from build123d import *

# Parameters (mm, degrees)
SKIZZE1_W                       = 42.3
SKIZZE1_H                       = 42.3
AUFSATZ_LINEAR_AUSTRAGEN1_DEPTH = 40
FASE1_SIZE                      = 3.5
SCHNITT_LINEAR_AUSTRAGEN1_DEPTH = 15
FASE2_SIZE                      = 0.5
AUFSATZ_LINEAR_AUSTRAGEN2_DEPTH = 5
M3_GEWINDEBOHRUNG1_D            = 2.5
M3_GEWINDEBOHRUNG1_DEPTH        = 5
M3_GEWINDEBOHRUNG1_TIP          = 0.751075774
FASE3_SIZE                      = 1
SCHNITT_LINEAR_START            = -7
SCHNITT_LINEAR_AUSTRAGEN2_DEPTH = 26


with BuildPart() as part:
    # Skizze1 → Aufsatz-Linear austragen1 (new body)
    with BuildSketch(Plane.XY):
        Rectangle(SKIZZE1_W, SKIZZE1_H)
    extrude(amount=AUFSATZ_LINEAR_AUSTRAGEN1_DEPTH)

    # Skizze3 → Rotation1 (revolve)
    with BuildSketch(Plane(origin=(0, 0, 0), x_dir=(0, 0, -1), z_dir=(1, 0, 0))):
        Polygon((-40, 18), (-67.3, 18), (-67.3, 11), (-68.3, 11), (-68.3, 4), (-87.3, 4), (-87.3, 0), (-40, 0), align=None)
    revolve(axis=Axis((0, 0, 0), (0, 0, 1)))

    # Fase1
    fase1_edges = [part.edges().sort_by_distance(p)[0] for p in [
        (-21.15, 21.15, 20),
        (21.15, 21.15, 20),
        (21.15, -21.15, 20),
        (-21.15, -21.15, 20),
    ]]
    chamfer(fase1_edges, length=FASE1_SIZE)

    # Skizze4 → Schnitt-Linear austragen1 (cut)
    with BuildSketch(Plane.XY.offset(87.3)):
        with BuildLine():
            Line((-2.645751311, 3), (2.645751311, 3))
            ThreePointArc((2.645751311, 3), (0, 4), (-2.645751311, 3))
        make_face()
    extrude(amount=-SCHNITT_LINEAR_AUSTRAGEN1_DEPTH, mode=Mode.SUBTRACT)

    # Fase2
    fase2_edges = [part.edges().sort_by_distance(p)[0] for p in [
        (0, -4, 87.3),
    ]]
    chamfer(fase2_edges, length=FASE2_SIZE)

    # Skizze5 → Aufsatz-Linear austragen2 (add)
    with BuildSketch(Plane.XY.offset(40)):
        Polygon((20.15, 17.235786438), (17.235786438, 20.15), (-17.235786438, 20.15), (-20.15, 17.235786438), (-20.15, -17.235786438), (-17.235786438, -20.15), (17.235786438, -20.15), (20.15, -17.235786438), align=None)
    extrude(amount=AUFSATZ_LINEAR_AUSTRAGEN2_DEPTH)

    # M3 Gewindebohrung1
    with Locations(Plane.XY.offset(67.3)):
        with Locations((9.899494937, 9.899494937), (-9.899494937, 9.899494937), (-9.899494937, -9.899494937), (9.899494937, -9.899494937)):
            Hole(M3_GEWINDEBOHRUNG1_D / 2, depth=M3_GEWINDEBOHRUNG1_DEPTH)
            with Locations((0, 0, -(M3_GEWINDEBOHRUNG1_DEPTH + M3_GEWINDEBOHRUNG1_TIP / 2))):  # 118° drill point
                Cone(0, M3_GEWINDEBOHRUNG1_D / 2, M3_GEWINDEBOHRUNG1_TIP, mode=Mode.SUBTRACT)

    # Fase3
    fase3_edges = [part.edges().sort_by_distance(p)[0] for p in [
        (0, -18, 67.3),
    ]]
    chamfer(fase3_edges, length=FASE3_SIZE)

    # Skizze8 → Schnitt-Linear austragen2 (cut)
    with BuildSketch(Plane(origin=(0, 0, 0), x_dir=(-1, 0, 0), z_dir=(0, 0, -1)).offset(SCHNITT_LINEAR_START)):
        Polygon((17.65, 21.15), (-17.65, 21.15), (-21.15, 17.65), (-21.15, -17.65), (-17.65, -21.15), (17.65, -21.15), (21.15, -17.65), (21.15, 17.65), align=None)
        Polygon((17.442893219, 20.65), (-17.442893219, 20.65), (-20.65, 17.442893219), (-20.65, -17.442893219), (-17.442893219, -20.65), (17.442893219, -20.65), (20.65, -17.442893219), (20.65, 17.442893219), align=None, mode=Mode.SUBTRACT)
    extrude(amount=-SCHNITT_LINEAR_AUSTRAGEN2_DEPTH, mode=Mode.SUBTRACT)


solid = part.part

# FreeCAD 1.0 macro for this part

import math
import FreeCAD as App
import Part
import Sketcher
from FreeCAD import Vector


def edges_at(feature, points):
    """Names of the edges that pass closest to the given points."""
    edges = feature.Shape.Edges
    near = lambda p: min(range(len(edges)), key=lambda i: edges[i].distToShape(Part.Vertex(*p))[0])
    return sorted({f"Edge{near(p) + 1}" for p in points})

doc = App.newDocument("Part")
body = doc.addObject("PartDesign::Body", "Body")

# Sketch on XY plane
sketch1 = doc.addObject("Sketcher::SketchObject", "Sketch")
body.addObject(sketch1)
sketch1.AttachmentSupport = (doc.XY_Plane, [""])
sketch1.MapMode = "FlatFace"
sketch1.addGeometry([
    Part.LineSegment(Vector(-21, 21, 0), Vector(-21, -21, 0)),
    Part.LineSegment(Vector(-21, -21, 0), Vector(21, -21, 0)),
    Part.LineSegment(Vector(21, -21, 0), Vector(21, 21, 0)),
    Part.LineSegment(Vector(21, 21, 0), Vector(-21, 21, 0)),
], False)
sketch1.addConstraint([
    Sketcher.Constraint("Coincident", 0, 2, 1, 1),
    Sketcher.Constraint("Coincident", 1, 2, 2, 1),
    Sketcher.Constraint("Coincident", 2, 2, 3, 1),
    Sketcher.Constraint("Coincident", 3, 2, 0, 1),
    Sketcher.Constraint("Vertical", 0),
    Sketcher.Constraint("Horizontal", 1),
    Sketcher.Constraint("Vertical", 2),
    Sketcher.Constraint("Horizontal", 3),
    Sketcher.Constraint("Symmetric", 0, 2, 2, 2, -1, 1),
    Sketcher.Constraint("Equal", 3, 0),
    Sketcher.Constraint("DistanceX", 1, 1, 1, 2, 42.3),
])
pad1 = doc.addObject("PartDesign::Pad", "Pad")
body.addObject(pad1)
pad1.Profile = sketch1
pad1.Length = 40

# Sketch on YZ plane
sketch2 = doc.addObject("Sketcher::SketchObject", "Sketch001")
body.addObject(sketch2)
sketch2.AttachmentSupport = (doc.YZ_Plane, [""])
sketch2.MapMode = "FlatFace"
sketch2.addGeometry([
    Part.LineSegment(Vector(18, 40, 0), Vector(18, 67.3, 0)),  # 0
    Part.LineSegment(Vector(18, 67.3, 0), Vector(11, 67.3, 0)),  # 1
    Part.LineSegment(Vector(11, 67.3, 0), Vector(11, 68.3, 0)),  # 2
    Part.LineSegment(Vector(11, 68.3, 0), Vector(4, 68.3, 0)),  # 3
    Part.LineSegment(Vector(4, 68.3, 0), Vector(4, 87.3, 0)),  # 4
    Part.LineSegment(Vector(4, 87.3, 0), Vector(0, 87.3, 0)),  # 5
    Part.LineSegment(Vector(0, 87.3, 0), Vector(0, 40, 0)),  # 6
    Part.LineSegment(Vector(0, 40, 0), Vector(18, 40, 0)),  # 7
], False)
sketch2.addConstraint([
    Sketcher.Constraint("Coincident", 0, 2, 1, 1),
    Sketcher.Constraint("Coincident", 1, 2, 2, 1),
    Sketcher.Constraint("Coincident", 2, 2, 3, 1),
    Sketcher.Constraint("Coincident", 3, 2, 4, 1),
    Sketcher.Constraint("Coincident", 4, 2, 5, 1),
    Sketcher.Constraint("Coincident", 5, 2, 6, 1),
    Sketcher.Constraint("Coincident", 6, 2, 7, 1),
    Sketcher.Constraint("Coincident", 7, 2, 0, 1),
    Sketcher.Constraint("Vertical", 0),
    Sketcher.Constraint("Horizontal", 1),
    Sketcher.Constraint("Vertical", 2),
    Sketcher.Constraint("Horizontal", 3),
    Sketcher.Constraint("Vertical", 4),
    Sketcher.Constraint("Horizontal", 5),
    Sketcher.Constraint("Vertical", 6),
    Sketcher.Constraint("Horizontal", 7),
    Sketcher.Constraint("PointOnObject", 5, 2, -2),
    Sketcher.Constraint("Equal", 1, 3),
    Sketcher.Constraint("DistanceX", 1, 2, 1, 1, 7.0),
    Sketcher.Constraint("DistanceX", 5, 2, 5, 1, 4.0),
    Sketcher.Constraint("DistanceY", 2, 1, 2, 2, 1.0),
    Sketcher.Constraint("DistanceY", 4, 1, 4, 2, 19.0),
    Sketcher.Constraint("DistanceY", 0, 1, 0, 2, 27.3),
    Sketcher.Constraint("DistanceY", -1, 1, 6, 2, 40.0),
])
revolution = doc.addObject("PartDesign::Revolution", "Revolution")
body.addObject(revolution)
revolution.Profile = sketch2
revolution.ReferenceAxis = (sketch2, ["V_Axis"])
revolution.Angle = 360
doc.recompute()

chamfer = doc.addObject("PartDesign::Chamfer", "Chamfer")
body.addObject(chamfer)
chamfer.Base = (revolution, edges_at(revolution, [
    (-21.15, 21.15, 20),
    (21.15, 21.15, 20),
    (21.15, -21.15, 20),
    (-21.15, -21.15, 20),
]))
chamfer.Size = 3.5

# Sketch on XY plane
sketch3 = doc.addObject("Sketcher::SketchObject", "Sketch002")
body.addObject(sketch3)
sketch3.AttachmentSupport = (doc.XY_Plane, [""])
sketch3.MapMode = "FlatFace"
sketch3.AttachmentOffset = App.Placement(Vector(0, 0, 87.3), App.Rotation())
sketch3.addGeometry([
    Part.LineSegment(Vector(-2.6, 3, 0), Vector(2.6, 3, 0)),
    Part.ArcOfCircle(Part.Circle(Vector(0, 0, 0), Vector(0, 0, 1), 4), math.radians(49), math.radians(131)),
], False)
sketch3.addConstraint([
    Sketcher.Constraint("Coincident", 0, 1, 1, 2),
    Sketcher.Constraint("Coincident", 1, 1, 0, 2),
    Sketcher.Constraint("Horizontal", 0),
    Sketcher.Constraint("Coincident", 1, 3, -1, 1),
    Sketcher.Constraint("Radius", 1, 4.0),
    Sketcher.Constraint("DistanceY", -1, 1, 0, 1, 3.0),
])
pocket1 = doc.addObject("PartDesign::Pocket", "Pocket")
body.addObject(pocket1)
pocket1.Profile = sketch3
pocket1.Length = 15
doc.recompute()

chamfer2 = doc.addObject("PartDesign::Chamfer", "Chamfer001")
body.addObject(chamfer2)
chamfer2.Base = (pocket1, edges_at(pocket1, [(0, -4, 87.3)]))
chamfer2.Size = 0.5

# Sketch on XY plane
sketch4 = doc.addObject("Sketcher::SketchObject", "Sketch003")
body.addObject(sketch4)
sketch4.AttachmentSupport = (doc.XY_Plane, [""])
sketch4.MapMode = "FlatFace"
sketch4.AttachmentOffset = App.Placement(Vector(0, 0, 40), App.Rotation())
sketch4.addGeometry([
    Part.LineSegment(Vector(20.1, 17.2, 0), Vector(17.2, 20.1, 0)),  # 0
    Part.LineSegment(Vector(17.2, 20.1, 0), Vector(-17.2, 20.1, 0)),  # 1
    Part.LineSegment(Vector(-17.2, 20.1, 0), Vector(-20.1, 17.2, 0)),  # 2
    Part.LineSegment(Vector(-20.1, 17.2, 0), Vector(-20.1, -17.2, 0)),  # 3
    Part.LineSegment(Vector(-20.1, -17.2, 0), Vector(-17.2, -20.1, 0)),  # 4
    Part.LineSegment(Vector(-17.2, -20.1, 0), Vector(17.2, -20.1, 0)),  # 5
    Part.LineSegment(Vector(17.2, -20.1, 0), Vector(20.1, -17.2, 0)),  # 6
    Part.LineSegment(Vector(20.1, -17.2, 0), Vector(20.1, 17.2, 0)),  # 7
], False)
sketch4.addConstraint([
    Sketcher.Constraint("Coincident", 0, 2, 1, 1),
    Sketcher.Constraint("Coincident", 1, 2, 2, 1),
    Sketcher.Constraint("Coincident", 2, 2, 3, 1),
    Sketcher.Constraint("Coincident", 3, 2, 4, 1),
    Sketcher.Constraint("Coincident", 4, 2, 5, 1),
    Sketcher.Constraint("Coincident", 5, 2, 6, 1),
    Sketcher.Constraint("Coincident", 6, 2, 7, 1),
    Sketcher.Constraint("Coincident", 7, 2, 0, 1),
    Sketcher.Constraint("Horizontal", 1),
    Sketcher.Constraint("Vertical", 3),
    Sketcher.Constraint("Horizontal", 5),
    Sketcher.Constraint("Vertical", 7),
    Sketcher.Constraint("Symmetric", 0, 2, 4, 2, -1, 1),
    Sketcher.Constraint("Symmetric", 2, 2, 6, 2, -1, 1),
    Sketcher.Constraint("Perpendicular", 0, 2),
    Sketcher.Constraint("Perpendicular", 2, 4),
    Sketcher.Constraint("Perpendicular", 4, 6),
    Sketcher.Constraint("Horizontal", 3, 2, 6, 2),
    Sketcher.Constraint("Vertical", 1, 2, 4, 2),
    Sketcher.Constraint("Equal", 5, 3),
    Sketcher.Constraint("DistanceY", 4, 2, 1, 2, 40.3),
    Sketcher.Constraint("Distance", 0, 4.12132),
])
pad2 = doc.addObject("PartDesign::Pad", "Pad001")
body.addObject(pad2)
pad2.Profile = sketch4
pad2.Length = 5

# Sketch on XY plane
sketch5 = doc.addObject("Sketcher::SketchObject", "Sketch004")
body.addObject(sketch5)
sketch5.AttachmentSupport = (doc.XY_Plane, [""])
sketch5.MapMode = "FlatFace"
sketch5.AttachmentOffset = App.Placement(Vector(0, 0, 67.3), App.Rotation())
sketch5.addGeometry([
    Part.Circle(Vector(9.9, 9.9, 0), Vector(0, 0, 1), 1.2),
    Part.Circle(Vector(-9.9, 9.9, 0), Vector(0, 0, 1), 1.2),
    Part.Circle(Vector(-9.9, -9.9, 0), Vector(0, 0, 1), 1.2),
    Part.Circle(Vector(9.9, -9.9, 0), Vector(0, 0, 1), 1.2),
], False)
sketch5.addConstraint([
    Sketcher.Constraint("Equal", 0, 1),
    Sketcher.Constraint("Equal", 1, 2),
    Sketcher.Constraint("Equal", 2, 3),
    Sketcher.Constraint("Symmetric", 0, 3, 2, 3, -1, 1),
    Sketcher.Constraint("Symmetric", 1, 3, 3, 3, -1, 1),
    Sketcher.Constraint("Symmetric", 0, 3, 1, 3, -2),
    Sketcher.Constraint("Diameter", 0, 2.5),
    Sketcher.Constraint("DistanceX", 1, 3, 0, 3, 19.79899),
    Sketcher.Constraint("DistanceY", 2, 3, 1, 3, 19.79899),
])
doc.recompute()
hole = doc.addObject("PartDesign::Hole", "Hole")
body.addObject(hole)
hole.Profile = sketch5
hole.ThreadType = "None"
hole.Diameter = 2.5
hole.DepthType = "Dimension"
hole.Depth = 5
hole.DrillPoint = "Angled"
hole.DrillPointAngle = 118
doc.recompute()

chamfer3 = doc.addObject("PartDesign::Chamfer", "Chamfer002")
body.addObject(chamfer3)
chamfer3.Base = (hole, edges_at(hole, [(0, -18, 67.3)]))
chamfer3.Size = 1

# Sketch on XY plane
sketch6 = doc.addObject("Sketcher::SketchObject", "Sketch005")
body.addObject(sketch6)
sketch6.AttachmentSupport = (doc.XY_Plane, [""])
sketch6.MapMode = "FlatFace"
sketch6.AttachmentOffset = App.Placement(Vector(0, 0, 7), App.Rotation())
sketch6.addGeometry([
    Part.LineSegment(Vector(-17.6, 21.1, 0), Vector(17.6, 21.1, 0)),  # 0
    Part.LineSegment(Vector(17.6, 21.1, 0), Vector(21.1, 17.6, 0)),  # 1
    Part.LineSegment(Vector(21.1, 17.6, 0), Vector(21.1, -17.6, 0)),  # 2
    Part.LineSegment(Vector(21.1, -17.6, 0), Vector(17.6, -21.1, 0)),  # 3
    Part.LineSegment(Vector(17.6, -21.1, 0), Vector(-17.6, -21.1, 0)),  # 4
    Part.LineSegment(Vector(-17.6, -21.1, 0), Vector(-21.1, -17.6, 0)),  # 5
    Part.LineSegment(Vector(-21.1, -17.6, 0), Vector(-21.1, 17.6, 0)),  # 6
    Part.LineSegment(Vector(-21.1, 17.6, 0), Vector(-17.6, 21.1, 0)),  # 7
    Part.LineSegment(Vector(17.4, 20.6, 0), Vector(-17.4, 20.6, 0)),  # 8
    Part.LineSegment(Vector(-17.4, 20.6, 0), Vector(-20.6, 17.4, 0)),  # 9
    Part.LineSegment(Vector(-20.6, 17.4, 0), Vector(-20.6, -17.4, 0)),  # 10
    Part.LineSegment(Vector(-20.6, -17.4, 0), Vector(-17.4, -20.6, 0)),  # 11
    Part.LineSegment(Vector(-17.4, -20.6, 0), Vector(17.4, -20.6, 0)),  # 12
    Part.LineSegment(Vector(17.4, -20.6, 0), Vector(20.6, -17.4, 0)),  # 13
    Part.LineSegment(Vector(20.6, -17.4, 0), Vector(20.6, 17.4, 0)),  # 14
    Part.LineSegment(Vector(20.6, 17.4, 0), Vector(17.4, 20.6, 0)),  # 15
], False)
sketch6.addConstraint([
    Sketcher.Constraint("Coincident", 0, 2, 1, 1),
    Sketcher.Constraint("Coincident", 1, 2, 2, 1),
    Sketcher.Constraint("Coincident", 2, 2, 3, 1),
    Sketcher.Constraint("Coincident", 3, 2, 4, 1),
    Sketcher.Constraint("Coincident", 4, 2, 5, 1),
    Sketcher.Constraint("Coincident", 5, 2, 6, 1),
    Sketcher.Constraint("Coincident", 6, 2, 7, 1),
    Sketcher.Constraint("Coincident", 7, 2, 0, 1),
    Sketcher.Constraint("Coincident", 8, 2, 9, 1),
    Sketcher.Constraint("Coincident", 9, 2, 10, 1),
    Sketcher.Constraint("Coincident", 10, 2, 11, 1),
    Sketcher.Constraint("Coincident", 11, 2, 12, 1),
    Sketcher.Constraint("Coincident", 12, 2, 13, 1),
    Sketcher.Constraint("Coincident", 13, 2, 14, 1),
    Sketcher.Constraint("Coincident", 14, 2, 15, 1),
    Sketcher.Constraint("Coincident", 15, 2, 8, 1),
    Sketcher.Constraint("Horizontal", 0),
    Sketcher.Constraint("Vertical", 2),
    Sketcher.Constraint("Horizontal", 4),
    Sketcher.Constraint("Vertical", 6),
    Sketcher.Constraint("Horizontal", 8),
    Sketcher.Constraint("Vertical", 10),
    Sketcher.Constraint("Horizontal", 12),
    Sketcher.Constraint("Vertical", 14),
    Sketcher.Constraint("Symmetric", 0, 2, 4, 2, -1, 1),
    Sketcher.Constraint("Symmetric", 1, 2, 5, 2, -1, 1),
    Sketcher.Constraint("Symmetric", 8, 2, 12, 2, -1, 1),
    Sketcher.Constraint("Symmetric", 9, 2, 13, 2, -1, 1),
    Sketcher.Constraint("Perpendicular", 1, 3),
    Sketcher.Constraint("Perpendicular", 5, 7),
    Sketcher.Constraint("Parallel", 7, 9),
    Sketcher.Constraint("Perpendicular", 9, 11),
    Sketcher.Constraint("Perpendicular", 13, 15),
    Sketcher.Constraint("Horizontal", 2, 2, 5, 2),
    Sketcher.Constraint("Horizontal", 1, 2, 6, 2),
    Sketcher.Constraint("Horizontal", 10, 2, 13, 2),
    Sketcher.Constraint("Horizontal", 9, 2, 14, 2),
    Sketcher.Constraint("Vertical", 0, 2, 3, 2),
    Sketcher.Constraint("Equal", 4, 2),
    Sketcher.Constraint("Equal", 12, 10),
    Sketcher.Constraint("DistanceX", 0, 1, 0, 2, 35.3),
    Sketcher.Constraint("DistanceY", 6, 2, 8, 2, 3.0),
    Sketcher.Constraint("DistanceX", 0, 2, 1, 2, 3.5),
    Sketcher.Constraint("DistanceX", 8, 2, 8, 1, 34.885786),
])
pocket2 = doc.addObject("PartDesign::Pocket", "Pocket001")
body.addObject(pocket2)
pocket2.Profile = sketch6
pocket2.Length = 26
pocket2.Reversed = True

doc.recompute()
